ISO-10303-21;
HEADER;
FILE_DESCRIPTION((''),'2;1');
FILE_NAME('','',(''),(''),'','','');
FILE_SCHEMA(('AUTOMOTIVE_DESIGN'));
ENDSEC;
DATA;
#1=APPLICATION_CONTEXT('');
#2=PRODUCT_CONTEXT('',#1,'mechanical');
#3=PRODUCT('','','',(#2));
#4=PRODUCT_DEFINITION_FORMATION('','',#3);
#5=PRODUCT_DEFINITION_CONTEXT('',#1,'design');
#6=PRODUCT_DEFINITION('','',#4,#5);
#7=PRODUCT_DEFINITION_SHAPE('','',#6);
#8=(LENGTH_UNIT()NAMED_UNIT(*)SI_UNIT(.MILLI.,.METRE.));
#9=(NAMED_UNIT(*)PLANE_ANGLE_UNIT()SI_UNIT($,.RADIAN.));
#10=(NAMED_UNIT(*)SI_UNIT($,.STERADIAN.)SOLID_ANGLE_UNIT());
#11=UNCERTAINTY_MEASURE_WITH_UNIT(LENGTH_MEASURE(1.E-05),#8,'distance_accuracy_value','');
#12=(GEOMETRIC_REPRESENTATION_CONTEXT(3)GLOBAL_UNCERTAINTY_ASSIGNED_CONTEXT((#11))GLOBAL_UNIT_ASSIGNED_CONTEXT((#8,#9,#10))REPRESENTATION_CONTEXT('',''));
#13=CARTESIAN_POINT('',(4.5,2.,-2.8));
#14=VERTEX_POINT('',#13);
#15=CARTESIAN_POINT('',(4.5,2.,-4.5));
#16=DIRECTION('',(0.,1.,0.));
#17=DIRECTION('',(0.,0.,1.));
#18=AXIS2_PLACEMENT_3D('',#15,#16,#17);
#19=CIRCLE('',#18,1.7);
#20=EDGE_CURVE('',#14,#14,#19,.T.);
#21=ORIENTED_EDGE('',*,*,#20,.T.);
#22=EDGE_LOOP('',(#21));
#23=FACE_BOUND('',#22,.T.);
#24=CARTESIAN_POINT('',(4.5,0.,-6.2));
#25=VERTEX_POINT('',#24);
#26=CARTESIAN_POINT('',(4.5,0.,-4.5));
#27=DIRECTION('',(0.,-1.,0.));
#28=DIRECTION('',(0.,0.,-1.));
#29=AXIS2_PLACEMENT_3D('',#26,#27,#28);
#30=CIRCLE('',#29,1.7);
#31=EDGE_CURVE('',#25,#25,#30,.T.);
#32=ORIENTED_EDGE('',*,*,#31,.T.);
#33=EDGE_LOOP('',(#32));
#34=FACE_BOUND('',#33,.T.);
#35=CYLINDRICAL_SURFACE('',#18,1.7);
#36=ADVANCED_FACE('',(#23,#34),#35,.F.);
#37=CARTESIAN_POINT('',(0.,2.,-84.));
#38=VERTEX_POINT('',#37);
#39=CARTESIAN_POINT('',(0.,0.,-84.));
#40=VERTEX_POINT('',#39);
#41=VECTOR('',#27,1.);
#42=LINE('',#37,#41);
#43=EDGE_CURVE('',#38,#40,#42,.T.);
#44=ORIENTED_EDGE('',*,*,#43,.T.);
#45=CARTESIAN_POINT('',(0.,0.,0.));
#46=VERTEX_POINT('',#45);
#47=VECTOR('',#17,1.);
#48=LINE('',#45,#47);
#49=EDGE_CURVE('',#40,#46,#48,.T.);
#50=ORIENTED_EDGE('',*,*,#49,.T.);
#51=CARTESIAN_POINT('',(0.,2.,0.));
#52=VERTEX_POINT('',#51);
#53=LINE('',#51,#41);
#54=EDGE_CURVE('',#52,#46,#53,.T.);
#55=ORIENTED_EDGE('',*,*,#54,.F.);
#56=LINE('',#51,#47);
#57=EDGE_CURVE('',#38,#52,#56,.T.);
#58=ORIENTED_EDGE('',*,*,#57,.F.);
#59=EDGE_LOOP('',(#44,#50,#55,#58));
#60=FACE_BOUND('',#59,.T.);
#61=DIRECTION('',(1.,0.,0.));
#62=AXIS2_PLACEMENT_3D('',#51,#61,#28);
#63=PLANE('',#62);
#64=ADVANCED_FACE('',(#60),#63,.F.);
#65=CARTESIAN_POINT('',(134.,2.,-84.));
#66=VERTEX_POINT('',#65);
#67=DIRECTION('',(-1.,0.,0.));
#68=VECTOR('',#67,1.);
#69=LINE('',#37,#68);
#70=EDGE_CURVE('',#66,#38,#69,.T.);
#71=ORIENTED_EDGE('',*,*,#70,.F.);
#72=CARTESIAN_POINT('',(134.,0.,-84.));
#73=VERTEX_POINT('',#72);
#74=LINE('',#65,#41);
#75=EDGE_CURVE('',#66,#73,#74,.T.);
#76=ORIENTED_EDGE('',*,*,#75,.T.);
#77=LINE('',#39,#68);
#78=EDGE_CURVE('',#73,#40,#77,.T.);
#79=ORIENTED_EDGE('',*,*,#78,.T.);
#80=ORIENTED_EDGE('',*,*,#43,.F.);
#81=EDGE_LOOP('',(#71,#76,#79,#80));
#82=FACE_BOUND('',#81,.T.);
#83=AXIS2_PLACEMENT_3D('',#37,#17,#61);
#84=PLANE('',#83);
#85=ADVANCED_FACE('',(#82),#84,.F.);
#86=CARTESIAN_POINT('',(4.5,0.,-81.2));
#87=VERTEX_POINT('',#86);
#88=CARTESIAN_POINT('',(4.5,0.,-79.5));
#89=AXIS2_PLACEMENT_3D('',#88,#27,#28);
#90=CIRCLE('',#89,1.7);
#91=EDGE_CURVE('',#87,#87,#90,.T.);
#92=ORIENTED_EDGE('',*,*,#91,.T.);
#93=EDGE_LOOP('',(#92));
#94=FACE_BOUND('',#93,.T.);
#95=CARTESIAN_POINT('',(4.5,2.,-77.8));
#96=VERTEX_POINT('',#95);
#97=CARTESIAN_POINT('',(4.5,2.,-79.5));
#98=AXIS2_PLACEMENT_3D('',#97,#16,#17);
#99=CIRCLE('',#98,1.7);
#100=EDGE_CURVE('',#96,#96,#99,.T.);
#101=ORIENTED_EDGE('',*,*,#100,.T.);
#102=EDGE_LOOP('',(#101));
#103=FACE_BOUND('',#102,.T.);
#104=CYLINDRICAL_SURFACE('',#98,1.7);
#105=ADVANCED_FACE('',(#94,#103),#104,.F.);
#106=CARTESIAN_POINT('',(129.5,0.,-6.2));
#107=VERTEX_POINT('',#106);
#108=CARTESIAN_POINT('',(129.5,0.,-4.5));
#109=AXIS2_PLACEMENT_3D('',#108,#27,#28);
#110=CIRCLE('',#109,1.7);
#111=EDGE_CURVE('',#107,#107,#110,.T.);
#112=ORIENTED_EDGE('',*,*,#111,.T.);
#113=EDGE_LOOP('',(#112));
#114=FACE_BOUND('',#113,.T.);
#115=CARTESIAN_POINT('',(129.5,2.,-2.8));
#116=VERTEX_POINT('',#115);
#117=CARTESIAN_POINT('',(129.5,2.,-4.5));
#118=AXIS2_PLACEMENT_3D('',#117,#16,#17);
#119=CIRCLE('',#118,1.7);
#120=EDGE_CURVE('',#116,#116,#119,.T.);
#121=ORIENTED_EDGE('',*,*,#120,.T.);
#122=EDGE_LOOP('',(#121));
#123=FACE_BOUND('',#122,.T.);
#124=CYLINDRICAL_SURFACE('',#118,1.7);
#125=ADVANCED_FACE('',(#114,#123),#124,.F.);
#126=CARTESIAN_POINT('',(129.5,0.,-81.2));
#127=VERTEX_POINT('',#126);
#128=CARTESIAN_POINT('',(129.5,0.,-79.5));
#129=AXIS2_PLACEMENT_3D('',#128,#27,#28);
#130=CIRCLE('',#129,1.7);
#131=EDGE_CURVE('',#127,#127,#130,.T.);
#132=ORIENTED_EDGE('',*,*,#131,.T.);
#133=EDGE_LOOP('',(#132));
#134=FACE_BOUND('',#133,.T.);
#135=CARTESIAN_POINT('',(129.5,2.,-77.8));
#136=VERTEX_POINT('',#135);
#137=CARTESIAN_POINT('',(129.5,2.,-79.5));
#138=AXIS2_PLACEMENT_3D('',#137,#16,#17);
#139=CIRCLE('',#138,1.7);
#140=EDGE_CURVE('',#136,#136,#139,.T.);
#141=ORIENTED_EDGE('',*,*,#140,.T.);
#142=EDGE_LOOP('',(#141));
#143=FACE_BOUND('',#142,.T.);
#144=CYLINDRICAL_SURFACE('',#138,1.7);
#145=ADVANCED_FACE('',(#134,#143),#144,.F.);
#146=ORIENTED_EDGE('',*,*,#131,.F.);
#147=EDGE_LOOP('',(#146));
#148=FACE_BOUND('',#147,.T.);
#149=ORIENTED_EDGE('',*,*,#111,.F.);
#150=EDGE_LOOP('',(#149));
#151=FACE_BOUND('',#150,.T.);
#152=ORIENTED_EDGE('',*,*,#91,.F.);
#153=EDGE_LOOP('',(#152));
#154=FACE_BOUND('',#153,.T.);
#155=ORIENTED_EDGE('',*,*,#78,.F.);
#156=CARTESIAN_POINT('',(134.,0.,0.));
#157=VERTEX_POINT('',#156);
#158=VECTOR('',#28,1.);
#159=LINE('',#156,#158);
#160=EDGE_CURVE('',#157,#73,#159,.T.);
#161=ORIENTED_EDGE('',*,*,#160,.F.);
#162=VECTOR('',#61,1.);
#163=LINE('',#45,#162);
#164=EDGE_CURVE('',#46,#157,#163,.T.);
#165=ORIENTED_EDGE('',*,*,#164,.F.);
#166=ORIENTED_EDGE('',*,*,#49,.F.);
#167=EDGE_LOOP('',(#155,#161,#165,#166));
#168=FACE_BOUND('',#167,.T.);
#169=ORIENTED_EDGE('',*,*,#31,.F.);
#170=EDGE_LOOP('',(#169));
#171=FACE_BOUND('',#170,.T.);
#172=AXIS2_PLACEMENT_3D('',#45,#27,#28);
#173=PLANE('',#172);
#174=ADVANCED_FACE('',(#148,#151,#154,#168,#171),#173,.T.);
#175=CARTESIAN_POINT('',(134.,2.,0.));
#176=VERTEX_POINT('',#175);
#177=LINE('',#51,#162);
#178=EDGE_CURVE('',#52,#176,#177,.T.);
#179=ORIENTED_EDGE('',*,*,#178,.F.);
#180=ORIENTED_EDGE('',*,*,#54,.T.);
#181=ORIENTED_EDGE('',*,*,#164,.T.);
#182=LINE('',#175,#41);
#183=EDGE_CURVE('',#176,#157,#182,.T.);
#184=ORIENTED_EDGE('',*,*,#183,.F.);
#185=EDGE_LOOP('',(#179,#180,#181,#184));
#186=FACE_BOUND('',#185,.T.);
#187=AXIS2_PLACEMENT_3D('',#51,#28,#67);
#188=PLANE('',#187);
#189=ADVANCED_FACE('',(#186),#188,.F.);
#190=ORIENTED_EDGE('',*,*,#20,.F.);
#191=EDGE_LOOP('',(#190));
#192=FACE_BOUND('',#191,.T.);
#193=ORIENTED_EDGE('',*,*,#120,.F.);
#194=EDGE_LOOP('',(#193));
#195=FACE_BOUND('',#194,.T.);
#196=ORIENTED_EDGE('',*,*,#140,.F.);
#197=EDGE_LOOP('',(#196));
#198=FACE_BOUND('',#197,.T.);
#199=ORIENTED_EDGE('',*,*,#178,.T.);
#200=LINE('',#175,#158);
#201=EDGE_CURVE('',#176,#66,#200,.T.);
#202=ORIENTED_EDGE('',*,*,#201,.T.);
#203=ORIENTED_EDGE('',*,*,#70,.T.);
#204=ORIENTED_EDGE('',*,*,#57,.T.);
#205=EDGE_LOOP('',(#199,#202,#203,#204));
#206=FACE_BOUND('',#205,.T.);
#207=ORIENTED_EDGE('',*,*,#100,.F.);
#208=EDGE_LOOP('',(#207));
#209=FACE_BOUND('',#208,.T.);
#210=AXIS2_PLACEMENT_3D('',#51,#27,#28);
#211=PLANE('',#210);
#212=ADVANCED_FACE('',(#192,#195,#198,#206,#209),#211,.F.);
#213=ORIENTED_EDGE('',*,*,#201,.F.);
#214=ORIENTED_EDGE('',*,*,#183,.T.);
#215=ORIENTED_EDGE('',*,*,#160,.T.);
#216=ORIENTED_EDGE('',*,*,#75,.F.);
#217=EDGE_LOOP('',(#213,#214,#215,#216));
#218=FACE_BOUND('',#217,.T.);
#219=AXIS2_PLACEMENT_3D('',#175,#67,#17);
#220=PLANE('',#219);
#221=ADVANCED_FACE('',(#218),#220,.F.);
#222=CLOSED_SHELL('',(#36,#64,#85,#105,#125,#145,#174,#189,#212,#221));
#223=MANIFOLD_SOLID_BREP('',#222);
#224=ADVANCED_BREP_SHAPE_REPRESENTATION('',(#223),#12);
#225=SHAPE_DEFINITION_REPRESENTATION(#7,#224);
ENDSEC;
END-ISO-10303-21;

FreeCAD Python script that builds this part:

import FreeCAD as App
import Part
import Sketcher

V = App.Vector
Q = App.Units.Quantity


def add_polygon(sketch, points):
    """Adds a closed chain of lines whose ends are joined by coincident constraints."""
    first, n = sketch.GeometryCount, len(points)
    for a, b in zip(points, points[1:] + points[:1]):
        sketch.addGeometry(Part.LineSegment(App.Vector(*a, 0), App.Vector(*b, 0)), False)
    for i in range(n):
        sketch.addConstraint(Sketcher.Constraint("Coincident", first + i, 2, first + (i + 1) % n, 1))

doc = App.newDocument("Part")
body = doc.addObject("PartDesign::Body", "Body")

# Sketch on XZ plane
sketch1 = body.newObject("Sketcher::SketchObject", "Sketch")
sketch1.AttachmentSupport = (doc.getObject("XZ_Plane"), [""])
sketch1.MapMode = "FlatFace"
add_polygon(sketch1, [(0, -84), (0, 0), (134, 0), (134, -84)])  # lines 0-3
sketch1.addConstraint(Sketcher.Constraint("Vertical", 0))
sketch1.addConstraint(Sketcher.Constraint("Horizontal", 1))
sketch1.addConstraint(Sketcher.Constraint("Vertical", 2))
sketch1.addConstraint(Sketcher.Constraint("Horizontal", 3))
sketch1.addConstraint(Sketcher.Constraint("Coincident", 0, 2, -1, 1))
sketch1.addConstraint(Sketcher.Constraint("DistanceX", 1, 1, 1, 2, Q("134 mm")))
sketch1.addConstraint(Sketcher.Constraint("DistanceY", 0, 1, 0, 2, Q("84 mm")))
pad1 = body.newObject("PartDesign::Pad", "Pad")
pad1.Profile = sketch1
pad1.Length = 2
pad1.Reversed = True

# Sketch on XZ plane
sketch2 = body.newObject("Sketcher::SketchObject", "Sketch001")
sketch2.AttachmentSupport = (doc.getObject("XZ_Plane"), [""])
sketch2.MapMode = "FlatFace"
sketch2.AttachmentOffset = App.Placement(V(0, 0, -2), App.Rotation())
sketch2.addGeometry(Part.Circle(V(4.5, -79.5, 0), V(0, 0, 1), 1.7), False)
sketch2.addGeometry(Part.Circle(V(129.5, -79.5, 0), V(0, 0, 1), 1.7), False)
sketch2.addGeometry(Part.Circle(V(129.5, -4.5, 0), V(0, 0, 1), 1.7), False)
sketch2.addGeometry(Part.Circle(V(4.5, -4.5, 0), V(0, 0, 1), 1.7), False)
sketch2.addConstraint(Sketcher.Constraint("Equal", 0, 1))
sketch2.addConstraint(Sketcher.Constraint("Equal", 1, 2))
sketch2.addConstraint(Sketcher.Constraint("Equal", 2, 3))
sketch2.addConstraint(Sketcher.Constraint("Horizontal", 0, 3, 1, 3))
sketch2.addConstraint(Sketcher.Constraint("Horizontal", 2, 3, 3, 3))
sketch2.addConstraint(Sketcher.Constraint("Vertical", 1, 3, 2, 3))
sketch2.addConstraint(Sketcher.Constraint("Vertical", 0, 3, 3, 3))
sketch2.addConstraint(Sketcher.Constraint("Diameter", 0, Q("3.4 mm")))
sketch2.addConstraint(Sketcher.Constraint("DistanceX", 0, 3, 1, 3, Q("125 mm")))
sketch2.addConstraint(Sketcher.Constraint("DistanceY", 1, 3, 2, 3, Q("75 mm")))
sketch2.addConstraint(Sketcher.Constraint("DistanceX", -1, 1, 0, 3, Q("4.5 mm")))
sketch2.addConstraint(Sketcher.Constraint("DistanceY", 0, 3, -1, 1, Q("79.5 mm")))
doc.recompute()
hole = body.newObject("PartDesign::Hole", "Hole")
hole.Profile = sketch2
hole.ThreadType = "None"
hole.Diameter = 3.4
hole.DepthType = "Dimension"
hole.Depth = 5
hole.DrillPoint = "Angled"
hole.DrillPointAngle = 118
hole.Reversed = True

doc.recompute()
